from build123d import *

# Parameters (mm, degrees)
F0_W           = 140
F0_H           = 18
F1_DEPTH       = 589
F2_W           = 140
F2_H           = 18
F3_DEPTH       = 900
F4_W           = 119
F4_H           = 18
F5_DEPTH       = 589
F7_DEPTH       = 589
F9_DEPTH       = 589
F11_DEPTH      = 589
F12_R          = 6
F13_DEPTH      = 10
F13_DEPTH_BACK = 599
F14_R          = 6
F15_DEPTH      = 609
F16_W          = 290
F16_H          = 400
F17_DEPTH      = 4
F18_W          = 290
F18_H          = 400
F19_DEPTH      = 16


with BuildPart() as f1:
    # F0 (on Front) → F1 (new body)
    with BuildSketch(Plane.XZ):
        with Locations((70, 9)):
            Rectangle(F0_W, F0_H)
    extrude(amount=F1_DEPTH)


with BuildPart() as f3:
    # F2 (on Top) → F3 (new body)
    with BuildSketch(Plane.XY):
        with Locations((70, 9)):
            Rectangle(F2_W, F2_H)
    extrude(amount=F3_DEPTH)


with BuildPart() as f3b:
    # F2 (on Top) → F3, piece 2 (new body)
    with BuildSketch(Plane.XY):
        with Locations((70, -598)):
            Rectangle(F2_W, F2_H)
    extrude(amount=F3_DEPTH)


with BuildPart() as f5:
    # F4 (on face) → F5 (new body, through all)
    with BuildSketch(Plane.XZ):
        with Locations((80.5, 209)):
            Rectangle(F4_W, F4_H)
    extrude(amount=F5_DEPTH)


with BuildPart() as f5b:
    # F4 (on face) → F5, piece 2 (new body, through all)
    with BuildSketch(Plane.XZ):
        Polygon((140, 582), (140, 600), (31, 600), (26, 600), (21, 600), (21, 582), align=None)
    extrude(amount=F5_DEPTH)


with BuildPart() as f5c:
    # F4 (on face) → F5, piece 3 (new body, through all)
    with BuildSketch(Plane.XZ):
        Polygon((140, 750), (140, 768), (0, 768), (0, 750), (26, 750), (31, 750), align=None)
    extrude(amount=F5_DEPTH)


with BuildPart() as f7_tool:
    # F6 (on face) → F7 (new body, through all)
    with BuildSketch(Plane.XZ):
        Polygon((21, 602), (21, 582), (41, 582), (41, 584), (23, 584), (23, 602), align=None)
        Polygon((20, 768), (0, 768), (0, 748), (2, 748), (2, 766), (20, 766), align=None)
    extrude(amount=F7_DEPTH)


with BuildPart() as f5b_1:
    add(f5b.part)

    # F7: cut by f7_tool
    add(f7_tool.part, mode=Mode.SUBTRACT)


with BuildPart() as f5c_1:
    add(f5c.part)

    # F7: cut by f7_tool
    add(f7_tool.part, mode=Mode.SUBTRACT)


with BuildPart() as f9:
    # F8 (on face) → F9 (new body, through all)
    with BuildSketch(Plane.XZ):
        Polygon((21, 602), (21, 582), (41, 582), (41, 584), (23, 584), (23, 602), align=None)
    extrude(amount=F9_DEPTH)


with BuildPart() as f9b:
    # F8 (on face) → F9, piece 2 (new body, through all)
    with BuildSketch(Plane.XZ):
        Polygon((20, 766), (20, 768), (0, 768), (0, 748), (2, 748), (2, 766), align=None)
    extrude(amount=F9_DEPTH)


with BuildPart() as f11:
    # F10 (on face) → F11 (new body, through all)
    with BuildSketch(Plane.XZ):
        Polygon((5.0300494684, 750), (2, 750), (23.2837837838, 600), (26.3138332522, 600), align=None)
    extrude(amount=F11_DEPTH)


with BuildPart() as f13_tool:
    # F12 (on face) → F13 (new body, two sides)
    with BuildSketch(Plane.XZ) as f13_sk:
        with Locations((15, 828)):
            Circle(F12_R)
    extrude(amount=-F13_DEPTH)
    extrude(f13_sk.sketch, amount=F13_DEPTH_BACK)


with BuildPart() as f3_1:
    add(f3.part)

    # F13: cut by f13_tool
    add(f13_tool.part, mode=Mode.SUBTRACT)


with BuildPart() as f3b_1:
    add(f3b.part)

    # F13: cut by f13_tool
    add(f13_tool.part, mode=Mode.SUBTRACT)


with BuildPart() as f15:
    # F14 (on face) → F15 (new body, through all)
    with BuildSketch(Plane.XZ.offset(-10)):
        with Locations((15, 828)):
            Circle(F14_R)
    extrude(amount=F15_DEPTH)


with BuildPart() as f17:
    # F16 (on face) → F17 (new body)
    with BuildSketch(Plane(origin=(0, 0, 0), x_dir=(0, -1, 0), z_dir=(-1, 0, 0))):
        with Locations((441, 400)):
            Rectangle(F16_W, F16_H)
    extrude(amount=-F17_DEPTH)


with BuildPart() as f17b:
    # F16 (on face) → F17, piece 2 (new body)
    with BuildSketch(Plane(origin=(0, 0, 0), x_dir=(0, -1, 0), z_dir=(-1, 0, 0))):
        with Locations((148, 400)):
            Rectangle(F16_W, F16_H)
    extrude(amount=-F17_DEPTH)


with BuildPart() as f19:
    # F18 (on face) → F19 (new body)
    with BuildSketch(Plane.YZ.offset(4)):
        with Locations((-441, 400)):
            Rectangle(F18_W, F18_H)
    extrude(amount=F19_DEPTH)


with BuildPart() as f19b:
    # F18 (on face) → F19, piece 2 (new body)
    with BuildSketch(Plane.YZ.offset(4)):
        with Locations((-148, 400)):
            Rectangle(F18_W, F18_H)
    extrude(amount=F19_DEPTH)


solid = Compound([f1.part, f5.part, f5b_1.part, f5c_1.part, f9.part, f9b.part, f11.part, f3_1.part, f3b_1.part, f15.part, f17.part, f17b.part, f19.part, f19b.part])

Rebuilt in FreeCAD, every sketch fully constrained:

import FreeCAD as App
import Part
import Sketcher

V = App.Vector
Q = App.Units.Quantity


def add_polygon(sketch, points):
    """Adds a closed chain of lines whose ends are joined by coincident constraints."""
    first, n = sketch.GeometryCount, len(points)
    for a, b in zip(points, points[1:] + points[:1]):
        sketch.addGeometry(Part.LineSegment(App.Vector(*a, 0), App.Vector(*b, 0)), False)
    for i in range(n):
        sketch.addConstraint(Sketcher.Constraint("Coincident", first + i, 2, first + (i + 1) % n, 1))

doc = App.newDocument("Part")
body = doc.addObject("PartDesign::Body", "Body")

# Sketch on XZ plane
sketch1 = doc.addObject("Sketcher::SketchObject", "Sketch")
body.addObject(sketch1)
sketch1.AttachmentSupport = (doc.XZ_Plane, [""])
sketch1.MapMode = "FlatFace"
add_polygon(sketch1, [(0, 18), (0, 0), (140, 0), (140, 18)])  # lines 0-3
sketch1.addConstraint([
    Sketcher.Constraint("Vertical", 0),
    Sketcher.Constraint("Horizontal", 1),
    Sketcher.Constraint("Vertical", 2),
    Sketcher.Constraint("Horizontal", 3),
    Sketcher.Constraint("Coincident", 0, 2, -1, 1),
    Sketcher.Constraint("DistanceX", 1, 1, 1, 2, Q("140 mm")),
    Sketcher.Constraint("DistanceY", 0, 2, 0, 1, Q("18 mm")),
])
pad1 = doc.addObject("PartDesign::Pad", "Pad")
body.addObject(pad1)
pad1.Profile = sketch1
pad1.Length = 589
body2 = doc.addObject("PartDesign::Body", "Body001")

# Sketch on XY plane
sketch2 = doc.addObject("Sketcher::SketchObject", "Sketch001")
body2.addObject(sketch2)
sketch2.AttachmentSupport = (doc.getObject("XY_Plane001"), [""])
sketch2.MapMode = "FlatFace"
add_polygon(sketch2, [(0, 18), (0, 0), (140, 0), (140, 18)])  # lines 0-3
sketch2.addConstraint([
    Sketcher.Constraint("Vertical", 0),
    Sketcher.Constraint("Horizontal", 1),
    Sketcher.Constraint("Vertical", 2),
    Sketcher.Constraint("Horizontal", 3),
    Sketcher.Constraint("Coincident", 0, 2, -1, 1),
    Sketcher.Constraint("DistanceX", 1, 1, 1, 2, Q("140 mm")),
    Sketcher.Constraint("DistanceY", 0, 2, 0, 1, Q("18 mm")),
])
pad2 = doc.addObject("PartDesign::Pad", "Pad001")
body2.addObject(pad2)
pad2.Profile = sketch2
pad2.Length = 900
body3 = doc.addObject("PartDesign::Body", "Body002")

# Sketch on XY plane
sketch3 = doc.addObject("Sketcher::SketchObject", "Sketch002")
body3.addObject(sketch3)
sketch3.AttachmentSupport = (doc.getObject("XY_Plane002"), [""])
sketch3.MapMode = "FlatFace"
add_polygon(sketch3, [(0, -589), (0, -607), (140, -607), (140, -589)])  # lines 0-3
sketch3.addConstraint([
    Sketcher.Constraint("Vertical", 0),
    Sketcher.Constraint("Horizontal", 1),
    Sketcher.Constraint("Vertical", 2),
    Sketcher.Constraint("Horizontal", 3),
    Sketcher.Constraint("PointOnObject", 0, 2, -2),
    Sketcher.Constraint("DistanceX", 1, 1, 1, 2, Q("140 mm")),
    Sketcher.Constraint("DistanceY", 0, 2, 0, 1, Q("18 mm")),
    Sketcher.Constraint("DistanceY", 0, 2, -1, 1, Q("607 mm")),
])
pad3 = doc.addObject("PartDesign::Pad", "Pad002")
body3.addObject(pad3)
pad3.Profile = sketch3
pad3.Length = 900
body4 = doc.addObject("PartDesign::Body", "Body003")

# Sketch on XZ plane
sketch4 = doc.addObject("Sketcher::SketchObject", "Sketch003")
body4.addObject(sketch4)
sketch4.AttachmentSupport = (doc.getObject("XZ_Plane003"), [""])
sketch4.MapMode = "FlatFace"
add_polygon(sketch4, [(21, 218), (21, 200), (140, 200), (140, 218)])  # lines 0-3
sketch4.addConstraint([
    Sketcher.Constraint("Vertical", 0),
    Sketcher.Constraint("Horizontal", 1),
    Sketcher.Constraint("Vertical", 2),
    Sketcher.Constraint("Horizontal", 3),
    Sketcher.Constraint("DistanceX", 1, 1, 1, 2, Q("119 mm")),
    Sketcher.Constraint("DistanceY", 0, 2, 0, 1, Q("18 mm")),
    Sketcher.Constraint("DistanceX", -1, 1, 0, 2, Q("21 mm")),
    Sketcher.Constraint("DistanceY", -1, 1, 0, 2, Q("200 mm")),
])
pad4 = doc.addObject("PartDesign::Pad", "Pad003")
body4.addObject(pad4)
pad4.Profile = sketch4
pad4.Length = 589
body5 = doc.addObject("PartDesign::Body", "Body004")

# Sketch on XZ plane
sketch5 = doc.addObject("Sketcher::SketchObject", "Sketch004")
body5.addObject(sketch5)
sketch5.AttachmentSupport = (doc.getObject("XZ_Plane004"), [""])
sketch5.MapMode = "FlatFace"
add_polygon(sketch5, [(140, 582), (140, 600), (21, 600), (21, 582)])  # lines 0-3
sketch5.addConstraint([
    Sketcher.Constraint("Vertical", 0),
    Sketcher.Constraint("Horizontal", 1),
    Sketcher.Constraint("Vertical", 2),
    Sketcher.Constraint("Horizontal", 3),
    Sketcher.Constraint("DistanceX", 1, 2, 1, 1, Q("119 mm")),
    Sketcher.Constraint("DistanceY", 0, 1, 0, 2, Q("18 mm")),
    Sketcher.Constraint("DistanceX", -1, 1, 0, 2, Q("140 mm")),
    Sketcher.Constraint("DistanceY", -1, 1, 0, 2, Q("600 mm")),
])
pad5 = doc.addObject("PartDesign::Pad", "Pad004")
body5.addObject(pad5)
pad5.Profile = sketch5
pad5.Length = 589
body6 = doc.addObject("PartDesign::Body", "Body005")

# Sketch on XZ plane
sketch6 = doc.addObject("Sketcher::SketchObject", "Sketch005")
body6.addObject(sketch6)
sketch6.AttachmentSupport = (doc.getObject("XZ_Plane005"), [""])
sketch6.MapMode = "FlatFace"
add_polygon(sketch6, [(140, 750), (140, 768), (0, 768), (0, 750)])  # lines 0-3
sketch6.addConstraint([
    Sketcher.Constraint("Vertical", 0),
    Sketcher.Constraint("Horizontal", 1),
    Sketcher.Constraint("Vertical", 2),
    Sketcher.Constraint("Horizontal", 3),
    Sketcher.Constraint("PointOnObject", 1, 2, -2),
    Sketcher.Constraint("DistanceX", 1, 2, 1, 1, Q("140 mm")),
    Sketcher.Constraint("DistanceY", 0, 1, 0, 2, Q("18 mm")),
    Sketcher.Constraint("DistanceY", -1, 1, 0, 2, Q("768 mm")),
])
pad6 = doc.addObject("PartDesign::Pad", "Pad005")
body6.addObject(pad6)
pad6.Profile = sketch6
pad6.Length = 589
body7 = doc.addObject("PartDesign::Body", "Body006")
body7.AllowCompound = True

# Sketch on XZ plane
sketch7 = doc.addObject("Sketcher::SketchObject", "Sketch006")
body7.addObject(sketch7)
sketch7.AttachmentSupport = (doc.getObject("XZ_Plane006"), [""])
sketch7.MapMode = "FlatFace"
add_polygon(sketch7, [(21, 602), (21, 582), (41, 582), (41, 584), (23, 584), (23, 602)])  # lines 0-5
add_polygon(sketch7, [(20, 768), (0, 768), (0, 748), (2, 748), (2, 766), (20, 766)])  # lines 6-11
sketch7.addConstraint([
    Sketcher.Constraint("Vertical", 0),
    Sketcher.Constraint("Horizontal", 1),
    Sketcher.Constraint("Vertical", 2),
    Sketcher.Constraint("Horizontal", 3),
    Sketcher.Constraint("Vertical", 4),
    Sketcher.Constraint("Horizontal", 5),
    Sketcher.Constraint("Horizontal", 6),
    Sketcher.Constraint("Vertical", 7),
    Sketcher.Constraint("Horizontal", 8),
    Sketcher.Constraint("Vertical", 9),
    Sketcher.Constraint("Horizontal", 10),
    Sketcher.Constraint("Vertical", 11),
    Sketcher.Constraint("PointOnObject", 6, 2, -2),
    Sketcher.Constraint("Equal", 1, 6),
    Sketcher.Constraint("Equal", 5, 8),
    Sketcher.Constraint("Equal", 6, 0),
    Sketcher.Constraint("Equal", 8, 2),
    Sketcher.Constraint("Equal", 0, 7),
    Sketcher.Constraint("Equal", 4, 9),
    Sketcher.Constraint("DistanceX", 1, 1, 1, 2, Q("20 mm")),
    Sketcher.Constraint("DistanceX", 3, 2, 3, 1, Q("18 mm")),
    Sketcher.Constraint("DistanceX", -1, 1, 0, 2, Q("21 mm")),
    Sketcher.Constraint("DistanceY", -1, 1, 0, 2, Q("582 mm")),
    Sketcher.Constraint("DistanceY", -1, 1, 6, 2, Q("768 mm")),
])
pad7 = doc.addObject("PartDesign::Pad", "Pad006")
body7.addObject(pad7)
pad7.Profile = sketch7
pad7.Length = 589
doc.recompute()

body8 = doc.addObject("PartDesign::Body", "Body007")
body8.BaseFeature = body7
boolean = doc.addObject("PartDesign::Boolean", "Boolean")
body5.addObject(boolean)
boolean.Type = "Cut"
boolean.addObjects([body8])
doc.recompute()

boolean2 = doc.addObject("PartDesign::Boolean", "Boolean001")
body6.addObject(boolean2)
boolean2.Type = "Cut"
boolean2.addObjects([body7])
body9 = doc.addObject("PartDesign::Body", "Body008")

# Sketch on XZ plane
sketch8 = doc.addObject("Sketcher::SketchObject", "Sketch007")
body9.addObject(sketch8)
sketch8.AttachmentSupport = (doc.getObject("XZ_Plane008"), [""])
sketch8.MapMode = "FlatFace"
add_polygon(sketch8, [(21, 602), (21, 582), (41, 582), (41, 584), (23, 584), (23, 602)])  # lines 0-5
sketch8.addConstraint([
    Sketcher.Constraint("Vertical", 0),
    Sketcher.Constraint("Horizontal", 1),
    Sketcher.Constraint("Vertical", 2),
    Sketcher.Constraint("Horizontal", 3),
    Sketcher.Constraint("Vertical", 4),
    Sketcher.Constraint("Horizontal", 5),
    Sketcher.Constraint("Equal", 1, 0),
    Sketcher.Constraint("Equal", 5, 2),
    Sketcher.Constraint("DistanceX", 1, 1, 1, 2, Q("20 mm")),
    Sketcher.Constraint("DistanceX", 3, 2, 3, 1, Q("18 mm")),
    Sketcher.Constraint("DistanceX", -1, 1, 0, 2, Q("21 mm")),
    Sketcher.Constraint("DistanceY", -1, 1, 0, 2, Q("582 mm")),
])
pad8 = doc.addObject("PartDesign::Pad", "Pad007")
body9.addObject(pad8)
pad8.Profile = sketch8
pad8.Length = 589
body10 = doc.addObject("PartDesign::Body", "Body009")

# Sketch on XZ plane
sketch9 = doc.addObject("Sketcher::SketchObject", "Sketch008")
body10.addObject(sketch9)
sketch9.AttachmentSupport = (doc.getObject("XZ_Plane009"), [""])
sketch9.MapMode = "FlatFace"
add_polygon(sketch9, [(20, 766), (20, 768), (0, 768), (0, 748), (2, 748), (2, 766)])  # lines 0-5
sketch9.addConstraint([
    Sketcher.Constraint("Vertical", 0),
    Sketcher.Constraint("Horizontal", 1),
    Sketcher.Constraint("Vertical", 2),
    Sketcher.Constraint("Horizontal", 3),
    Sketcher.Constraint("Vertical", 4),
    Sketcher.Constraint("Horizontal", 5),
    Sketcher.Constraint("PointOnObject", 1, 2, -2),
    Sketcher.Constraint("Equal", 3, 0),
    Sketcher.Constraint("Equal", 1, 2),
    Sketcher.Constraint("DistanceX", 1, 2, 1, 1, Q("20 mm")),
    Sketcher.Constraint("DistanceX", 3, 1, 3, 2, Q("2 mm")),
    Sketcher.Constraint("DistanceY", -1, 1, 0, 2, Q("768 mm")),
])
pad9 = doc.addObject("PartDesign::Pad", "Pad008")
body10.addObject(pad9)
pad9.Profile = sketch9
pad9.Length = 589
body11 = doc.addObject("PartDesign::Body", "Body010")

# Sketch on XZ plane
sketch10 = doc.addObject("Sketcher::SketchObject", "Sketch009")
body11.addObject(sketch10)
sketch10.AttachmentSupport = (doc.getObject("XZ_Plane010"), [""])
sketch10.MapMode = "FlatFace"
add_polygon(sketch10, [(5.030049, 750), (2, 750), (23.283784, 600), (26.313833, 600)])  # lines 0-3
sketch10.addConstraint([
    Sketcher.Constraint("Horizontal", 0),
    Sketcher.Constraint("Horizontal", 2),
    Sketcher.Constraint("Parallel", 1, 3),
    Sketcher.Constraint("DistanceX", -1, 1, 0, 2, Q("2 mm")),
    Sketcher.Constraint("DistanceY", -1, 1, 0, 2, Q("750 mm")),
    Sketcher.Constraint("DistanceY", -1, 1, 1, 2, Q("600 mm")),
    Sketcher.Constraint("DistanceX", 0, 2, 0, 1, Q("3.030049 mm")),
    Sketcher.Constraint("Distance", 1, Q("151.502473 mm")),
])
pad10 = doc.addObject("PartDesign::Pad", "Pad009")
body11.addObject(pad10)
pad10.Profile = sketch10
pad10.Length = 589
body12 = doc.addObject("PartDesign::Body", "Body011")

# Sketch on XZ plane
sketch11 = doc.addObject("Sketcher::SketchObject", "Sketch010")
body12.addObject(sketch11)
sketch11.AttachmentSupport = (doc.getObject("XZ_Plane011"), [""])
sketch11.MapMode = "FlatFace"
sketch11.addGeometry(Part.Circle(V(15, 828, 0), V(0, 0, 1), 6), False)
sketch11.addConstraint([
    Sketcher.Constraint("Diameter", 0, Q("12 mm")),
    Sketcher.Constraint("DistanceX", -1, 1, 0, 3, Q("15 mm")),
    Sketcher.Constraint("DistanceY", -1, 1, 0, 3, Q("828 mm")),
])
pad11 = doc.addObject("PartDesign::Pad", "Pad010")
body12.addObject(pad11)
pad11.Profile = sketch11
pad11.Type = "TwoLengths"
pad11.Length = 10
pad11.Length2 = 599
pad11.Reversed = True
doc.recompute()

body13 = doc.addObject("PartDesign::Body", "Body012")
body13.BaseFeature = body12
boolean3 = doc.addObject("PartDesign::Boolean", "Boolean002")
body2.addObject(boolean3)
boolean3.Type = "Cut"
boolean3.addObjects([body13])
doc.recompute()

boolean4 = doc.addObject("PartDesign::Boolean", "Boolean003")
body3.addObject(boolean4)
boolean4.Type = "Cut"
boolean4.addObjects([body12])
body14 = doc.addObject("PartDesign::Body", "Body013")

# Sketch on XZ plane
sketch12 = doc.addObject("Sketcher::SketchObject", "Sketch011")
body14.addObject(sketch12)
sketch12.AttachmentSupport = (doc.getObject("XZ_Plane013"), [""])
sketch12.MapMode = "FlatFace"
sketch12.AttachmentOffset = App.Placement(V(0, 0, -10), App.Rotation())
sketch12.addGeometry(Part.Circle(V(15, 828, 0), V(0, 0, 1), 6), False)
sketch12.addConstraint([
    Sketcher.Constraint("Diameter", 0, Q("12 mm")),
    Sketcher.Constraint("DistanceX", -1, 1, 0, 3, Q("15 mm")),
    Sketcher.Constraint("DistanceY", -1, 1, 0, 3, Q("828 mm")),
])
pad12 = doc.addObject("PartDesign::Pad", "Pad011")
body14.addObject(pad12)
pad12.Profile = sketch12
pad12.Length = 609
body15 = doc.addObject("PartDesign::Body", "Body014")

# Sketch on YZ plane
sketch13 = doc.addObject("Sketcher::SketchObject", "Sketch012")
body15.addObject(sketch13)
sketch13.AttachmentSupport = (doc.getObject("YZ_Plane014"), [""])
sketch13.MapMode = "FlatFace"
add_polygon(sketch13, [(-296, 600), (-296, 200), (-586, 200), (-586, 600)])  # lines 0-3
sketch13.addConstraint([
    Sketcher.Constraint("Vertical", 0),
    Sketcher.Constraint("Horizontal", 1),
    Sketcher.Constraint("Vertical", 2),
    Sketcher.Constraint("Horizontal", 3),
    Sketcher.Constraint("DistanceX", 1, 2, 1, 1, Q("290 mm")),
    Sketcher.Constraint("DistanceY", 0, 2, 0, 1, Q("400 mm")),
    Sketcher.Constraint("DistanceX", 0, 2, -1, 1, Q("296 mm")),
    Sketcher.Constraint("DistanceY", -1, 1, 0, 2, Q("200 mm")),
])
pad13 = doc.addObject("PartDesign::Pad", "Pad012")
body15.addObject(pad13)
pad13.Profile = sketch13
pad13.Length = 4
body16 = doc.addObject("PartDesign::Body", "Body015")

# Sketch on YZ plane
sketch14 = doc.addObject("Sketcher::SketchObject", "Sketch013")
body16.addObject(sketch14)
sketch14.AttachmentSupport = (doc.getObject("YZ_Plane015"), [""])
sketch14.MapMode = "FlatFace"
add_polygon(sketch14, [(-3, 600), (-3, 200), (-293, 200), (-293, 600)])  # lines 0-3
sketch14.addConstraint([
    Sketcher.Constraint("Vertical", 0),
    Sketcher.Constraint("Horizontal", 1),
    Sketcher.Constraint("Vertical", 2),
    Sketcher.Constraint("Horizontal", 3),
    Sketcher.Constraint("DistanceX", 1, 2, 1, 1, Q("290 mm")),
    Sketcher.Constraint("DistanceY", 0, 2, 0, 1, Q("400 mm")),
    Sketcher.Constraint("DistanceX", 0, 2, -1, 1, Q("3 mm")),
    Sketcher.Constraint("DistanceY", -1, 1, 0, 2, Q("200 mm")),
])
pad14 = doc.addObject("PartDesign::Pad", "Pad013")
body16.addObject(pad14)
pad14.Profile = sketch14
pad14.Length = 4
body17 = doc.addObject("PartDesign::Body", "Body016")

# Sketch on YZ plane
sketch15 = doc.addObject("Sketcher::SketchObject", "Sketch014")
body17.addObject(sketch15)
sketch15.AttachmentSupport = (doc.getObject("YZ_Plane016"), [""])
sketch15.MapMode = "FlatFace"
sketch15.AttachmentOffset = App.Placement(V(0, 0, 4), App.Rotation())
add_polygon(sketch15, [(-586, 600), (-586, 200), (-296, 200), (-296, 600)])  # lines 0-3
sketch15.addConstraint([
    Sketcher.Constraint("Vertical", 0),
    Sketcher.Constraint("Horizontal", 1),
    Sketcher.Constraint("Vertical", 2),
    Sketcher.Constraint("Horizontal", 3),
    Sketcher.Constraint("DistanceX", 1, 1, 1, 2, Q("290 mm")),
    Sketcher.Constraint("DistanceY", 0, 2, 0, 1, Q("400 mm")),
    Sketcher.Constraint("DistanceX", 0, 2, -1, 1, Q("586 mm")),
    Sketcher.Constraint("DistanceY", -1, 1, 0, 2, Q("200 mm")),
])
pad15 = doc.addObject("PartDesign::Pad", "Pad014")
body17.addObject(pad15)
pad15.Profile = sketch15
pad15.Length = 16
body18 = doc.addObject("PartDesign::Body", "Body017")

# Sketch on YZ plane
sketch16 = doc.addObject("Sketcher::SketchObject", "Sketch015")
body18.addObject(sketch16)
sketch16.AttachmentSupport = (doc.getObject("YZ_Plane017"), [""])
sketch16.MapMode = "FlatFace"
sketch16.AttachmentOffset = App.Placement(V(0, 0, 4), App.Rotation())
add_polygon(sketch16, [(-293, 600), (-293, 200), (-3, 200), (-3, 600)])  # lines 0-3
sketch16.addConstraint([
    Sketcher.Constraint("Vertical", 0),
    Sketcher.Constraint("Horizontal", 1),
    Sketcher.Constraint("Vertical", 2),
    Sketcher.Constraint("Horizontal", 3),
    Sketcher.Constraint("DistanceX", 1, 1, 1, 2, Q("290 mm")),
    Sketcher.Constraint("DistanceY", 0, 2, 0, 1, Q("400 mm")),
    Sketcher.Constraint("DistanceX", 0, 2, -1, 1, Q("293 mm")),
    Sketcher.Constraint("DistanceY", -1, 1, 0, 2, Q("200 mm")),
])
pad16 = doc.addObject("PartDesign::Pad", "Pad015")
body18.addObject(pad16)
pad16.Profile = sketch16
pad16.Length = 16

doc.recompute()
